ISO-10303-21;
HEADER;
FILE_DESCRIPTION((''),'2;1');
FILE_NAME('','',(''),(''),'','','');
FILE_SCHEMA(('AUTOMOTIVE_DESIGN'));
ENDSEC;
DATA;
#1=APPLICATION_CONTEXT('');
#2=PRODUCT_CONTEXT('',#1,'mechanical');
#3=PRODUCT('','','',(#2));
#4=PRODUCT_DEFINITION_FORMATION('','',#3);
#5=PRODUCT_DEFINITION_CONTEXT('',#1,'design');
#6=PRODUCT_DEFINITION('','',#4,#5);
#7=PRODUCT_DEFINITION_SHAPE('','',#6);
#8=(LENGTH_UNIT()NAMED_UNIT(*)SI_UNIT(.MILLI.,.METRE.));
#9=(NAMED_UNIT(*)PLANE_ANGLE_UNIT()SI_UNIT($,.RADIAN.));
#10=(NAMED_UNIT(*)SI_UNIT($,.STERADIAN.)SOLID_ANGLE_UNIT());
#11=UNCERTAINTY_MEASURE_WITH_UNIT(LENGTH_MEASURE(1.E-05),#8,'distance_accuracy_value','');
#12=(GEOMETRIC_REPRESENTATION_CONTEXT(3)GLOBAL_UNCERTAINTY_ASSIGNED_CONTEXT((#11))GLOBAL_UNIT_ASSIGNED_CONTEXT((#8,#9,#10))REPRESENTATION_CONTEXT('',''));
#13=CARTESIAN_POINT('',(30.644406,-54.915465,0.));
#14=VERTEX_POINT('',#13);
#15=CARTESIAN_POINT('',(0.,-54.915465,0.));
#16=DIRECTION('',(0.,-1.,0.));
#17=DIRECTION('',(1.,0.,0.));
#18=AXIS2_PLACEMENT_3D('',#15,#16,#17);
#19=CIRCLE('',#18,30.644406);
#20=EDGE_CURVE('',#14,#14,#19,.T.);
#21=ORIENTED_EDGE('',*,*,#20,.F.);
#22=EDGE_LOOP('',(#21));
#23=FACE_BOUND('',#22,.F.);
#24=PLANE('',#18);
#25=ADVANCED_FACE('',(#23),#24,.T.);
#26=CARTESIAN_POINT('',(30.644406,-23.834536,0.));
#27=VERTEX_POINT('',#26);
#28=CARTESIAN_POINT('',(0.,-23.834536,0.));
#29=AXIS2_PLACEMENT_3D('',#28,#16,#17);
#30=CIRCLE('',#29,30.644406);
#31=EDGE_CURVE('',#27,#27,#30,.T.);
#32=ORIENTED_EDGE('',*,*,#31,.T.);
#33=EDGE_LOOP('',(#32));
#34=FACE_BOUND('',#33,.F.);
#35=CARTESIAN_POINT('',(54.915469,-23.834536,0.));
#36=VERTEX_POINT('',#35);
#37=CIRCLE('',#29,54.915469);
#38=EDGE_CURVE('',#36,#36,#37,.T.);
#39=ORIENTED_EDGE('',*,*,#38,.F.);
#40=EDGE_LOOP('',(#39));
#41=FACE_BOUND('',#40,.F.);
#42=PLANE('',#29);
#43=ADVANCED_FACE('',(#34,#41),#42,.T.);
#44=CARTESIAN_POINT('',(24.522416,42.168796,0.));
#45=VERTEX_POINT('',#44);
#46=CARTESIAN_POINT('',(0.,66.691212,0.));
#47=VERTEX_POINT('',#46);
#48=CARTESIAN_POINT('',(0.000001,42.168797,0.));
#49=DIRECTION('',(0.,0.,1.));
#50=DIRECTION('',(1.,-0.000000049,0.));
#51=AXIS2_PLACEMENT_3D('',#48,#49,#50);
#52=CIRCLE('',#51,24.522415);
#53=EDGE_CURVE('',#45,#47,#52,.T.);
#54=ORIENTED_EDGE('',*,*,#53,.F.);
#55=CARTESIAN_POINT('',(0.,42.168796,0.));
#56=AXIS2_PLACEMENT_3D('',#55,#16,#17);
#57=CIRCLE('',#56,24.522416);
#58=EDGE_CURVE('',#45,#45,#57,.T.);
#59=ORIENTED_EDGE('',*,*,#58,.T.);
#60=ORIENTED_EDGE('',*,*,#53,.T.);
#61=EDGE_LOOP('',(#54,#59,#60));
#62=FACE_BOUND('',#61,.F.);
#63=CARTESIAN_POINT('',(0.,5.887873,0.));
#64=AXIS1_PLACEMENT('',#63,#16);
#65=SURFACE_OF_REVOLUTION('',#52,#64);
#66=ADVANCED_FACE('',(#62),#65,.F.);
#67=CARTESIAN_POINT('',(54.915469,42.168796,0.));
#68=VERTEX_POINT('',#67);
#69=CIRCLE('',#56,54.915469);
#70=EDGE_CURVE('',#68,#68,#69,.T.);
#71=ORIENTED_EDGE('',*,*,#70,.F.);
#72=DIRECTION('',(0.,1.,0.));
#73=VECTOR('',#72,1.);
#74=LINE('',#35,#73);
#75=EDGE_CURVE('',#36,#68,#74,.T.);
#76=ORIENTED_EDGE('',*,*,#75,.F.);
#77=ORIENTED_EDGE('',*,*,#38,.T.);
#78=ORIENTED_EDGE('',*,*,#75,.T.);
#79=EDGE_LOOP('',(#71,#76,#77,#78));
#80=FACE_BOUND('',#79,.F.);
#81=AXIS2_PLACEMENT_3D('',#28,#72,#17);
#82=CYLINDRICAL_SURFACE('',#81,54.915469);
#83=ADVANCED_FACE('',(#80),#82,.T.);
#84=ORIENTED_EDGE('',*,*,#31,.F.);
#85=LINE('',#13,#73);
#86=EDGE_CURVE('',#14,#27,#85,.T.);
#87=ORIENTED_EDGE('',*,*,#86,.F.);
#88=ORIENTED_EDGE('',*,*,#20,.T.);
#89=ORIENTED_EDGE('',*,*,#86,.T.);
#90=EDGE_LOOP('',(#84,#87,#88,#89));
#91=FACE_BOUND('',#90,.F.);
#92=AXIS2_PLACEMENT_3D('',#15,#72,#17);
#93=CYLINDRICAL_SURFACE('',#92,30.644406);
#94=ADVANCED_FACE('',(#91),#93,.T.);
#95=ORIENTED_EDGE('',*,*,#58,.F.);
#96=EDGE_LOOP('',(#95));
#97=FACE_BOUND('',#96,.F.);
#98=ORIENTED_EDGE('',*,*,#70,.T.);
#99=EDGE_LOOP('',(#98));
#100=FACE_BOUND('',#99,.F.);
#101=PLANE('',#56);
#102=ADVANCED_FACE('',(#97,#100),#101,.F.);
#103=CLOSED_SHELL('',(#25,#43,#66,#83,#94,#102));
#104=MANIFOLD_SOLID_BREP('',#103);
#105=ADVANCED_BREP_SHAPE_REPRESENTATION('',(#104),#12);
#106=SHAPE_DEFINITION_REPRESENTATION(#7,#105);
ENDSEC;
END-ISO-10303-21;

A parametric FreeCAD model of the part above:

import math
import FreeCAD as App
import Part
import Sketcher

V = App.Vector

doc = App.newDocument("Part")
params = doc.addObject("Spreadsheet::Sheet", "Params")
for row, (alias, value) in enumerate([
    ("revolution_angle", "360 deg"),
], start=1):
    params.set(f"A{row}", alias)
    params.set(f"B{row}", "=" + value)
    params.setAlias(f"B{row}", alias)

body = doc.addObject("PartDesign::Body", "Body")

sketch1 = doc.addObject("Sketcher::SketchObject", "Sketch")
body.addObject(sketch1)
sketch1.AttachmentSupport = (doc.XY_Plane, [""])
sketch1.MapMode = "FlatFace"
sketch1.addGeometry([
    Part.LineSegment(V(55, 42, 0), V(25, 42, 0)),
    Part.ArcOfCircle(Part.Circle(V(0, 42, 0), V(0, 0, 1), 25), math.radians(0), math.radians(90)),
    Part.LineSegment(V(0, 67, 0), V(0, -55, 0)),
    Part.LineSegment(V(0, -55, 0), V(31, -55, 0)),
    Part.LineSegment(V(31, -55, 0), V(31, -24, 0)),
    Part.LineSegment(V(31, -24, 0), V(55, -24, 0)),
    Part.LineSegment(V(55, -24, 0), V(55, 42, 0)),
], False)
sketch1.addConstraint([
    Sketcher.Constraint("Coincident", 0, 2, 1, 1),
    Sketcher.Constraint("Coincident", 1, 2, 2, 1),
    Sketcher.Constraint("Coincident", 2, 2, 3, 1),
    Sketcher.Constraint("Coincident", 3, 2, 4, 1),
    Sketcher.Constraint("Coincident", 4, 2, 5, 1),
    Sketcher.Constraint("Coincident", 5, 2, 6, 1),
    Sketcher.Constraint("Coincident", 6, 2, 0, 1),
    Sketcher.Constraint("Horizontal", 0),
    Sketcher.Constraint("Vertical", 2),
    Sketcher.Constraint("Horizontal", 3),
    Sketcher.Constraint("Vertical", 4),
    Sketcher.Constraint("Horizontal", 5),
    Sketcher.Constraint("Vertical", 6),
    Sketcher.Constraint("PointOnObject", 1, 3, -2),
    Sketcher.Constraint("PointOnObject", 1, 2, -2),
    Sketcher.Constraint("Horizontal", 1, 3, 0, 2),
    Sketcher.Constraint("Radius", 1, 24.522415),
    Sketcher.Constraint("DistanceY", 4, 1, 4, 2, 31.080929),
    Sketcher.Constraint("DistanceY", 6, 1, 6, 2, 66.003332),
    Sketcher.Constraint("DistanceX", 0, 2, 0, 1, 30.393053),
    Sketcher.Constraint("DistanceX", 3, 1, 3, 2, 30.644406),
    Sketcher.Constraint("DistanceY", -1, 1, 1, 2, 66.691212),
])
revolution = doc.addObject("PartDesign::Revolution", "Revolution")
body.addObject(revolution)
revolution.Profile = sketch1
revolution.ReferenceAxis = (sketch1, ["V_Axis"])
revolution.setExpression("Angle", "Params.revolution_angle")

doc.recompute()
